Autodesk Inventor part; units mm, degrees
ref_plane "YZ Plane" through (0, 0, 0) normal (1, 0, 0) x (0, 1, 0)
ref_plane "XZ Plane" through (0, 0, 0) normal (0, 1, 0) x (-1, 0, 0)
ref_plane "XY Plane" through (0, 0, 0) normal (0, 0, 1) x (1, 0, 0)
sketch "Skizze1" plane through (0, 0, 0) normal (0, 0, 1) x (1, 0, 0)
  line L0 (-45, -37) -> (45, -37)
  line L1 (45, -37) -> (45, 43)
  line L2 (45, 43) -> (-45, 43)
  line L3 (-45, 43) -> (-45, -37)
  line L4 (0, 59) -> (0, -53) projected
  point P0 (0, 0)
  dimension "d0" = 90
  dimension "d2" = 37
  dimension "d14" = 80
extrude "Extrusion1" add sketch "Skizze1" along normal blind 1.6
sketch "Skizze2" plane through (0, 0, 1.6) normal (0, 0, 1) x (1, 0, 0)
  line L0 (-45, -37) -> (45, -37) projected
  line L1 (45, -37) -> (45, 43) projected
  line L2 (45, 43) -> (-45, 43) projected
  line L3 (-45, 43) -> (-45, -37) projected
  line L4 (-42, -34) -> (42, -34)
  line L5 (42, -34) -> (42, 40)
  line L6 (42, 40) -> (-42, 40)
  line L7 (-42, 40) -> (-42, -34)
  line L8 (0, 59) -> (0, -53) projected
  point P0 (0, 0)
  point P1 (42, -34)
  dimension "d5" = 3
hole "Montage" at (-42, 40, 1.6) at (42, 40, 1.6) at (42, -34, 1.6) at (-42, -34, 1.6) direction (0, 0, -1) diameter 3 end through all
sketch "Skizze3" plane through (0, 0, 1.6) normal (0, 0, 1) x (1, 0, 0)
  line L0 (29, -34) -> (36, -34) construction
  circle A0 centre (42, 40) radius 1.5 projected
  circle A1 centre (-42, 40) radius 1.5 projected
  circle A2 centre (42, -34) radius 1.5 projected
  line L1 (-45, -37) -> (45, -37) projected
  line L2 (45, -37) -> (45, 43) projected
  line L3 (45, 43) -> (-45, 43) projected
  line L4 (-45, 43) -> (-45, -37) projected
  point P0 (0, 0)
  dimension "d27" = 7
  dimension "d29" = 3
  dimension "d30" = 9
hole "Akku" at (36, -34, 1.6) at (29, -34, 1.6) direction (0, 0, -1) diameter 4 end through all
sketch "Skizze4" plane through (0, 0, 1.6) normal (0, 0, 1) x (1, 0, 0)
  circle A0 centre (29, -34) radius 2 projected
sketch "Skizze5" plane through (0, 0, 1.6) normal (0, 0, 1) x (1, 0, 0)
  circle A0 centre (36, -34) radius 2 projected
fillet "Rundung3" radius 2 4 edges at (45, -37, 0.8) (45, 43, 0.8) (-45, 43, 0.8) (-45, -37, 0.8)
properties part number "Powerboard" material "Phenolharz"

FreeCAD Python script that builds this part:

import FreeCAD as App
import Part
import Sketcher
from FreeCAD import Vector
Q = App.Units.Quantity


def edges_at(feature, points):
    """Names of the edges that pass closest to the given points."""
    edges = feature.Shape.Edges
    near = lambda p: min(range(len(edges)), key=lambda i: edges[i].distToShape(Part.Vertex(*p))[0])
    return sorted({f"Edge{near(p) + 1}" for p in points})


def add_polygon(sketch, points):
    """Adds a closed chain of lines whose ends are joined by coincident constraints."""
    first, n = sketch.GeometryCount, len(points)
    for a, b in zip(points, points[1:] + points[:1]):
        sketch.addGeometry(Part.LineSegment(App.Vector(*a, 0), App.Vector(*b, 0)), False)
    for i in range(n):
        sketch.addConstraint(Sketcher.Constraint("Coincident", first + i, 2, first + (i + 1) % n, 1))

doc = App.newDocument("Part")
params = doc.addObject("Spreadsheet::Sheet", "Params")
for row, (alias, value) in enumerate([
    ("sketch1_width", "90 mm"),
    ("sketch1_height", "80 mm"),
    ("pad1_length", "1.6 mm"),
    ("sketch2_diameter", "3 mm"),
    ("hole_diameter", "3 mm"),
    ("sketch3_diameter", "4 mm"),
    ("hole2_diameter", "4 mm"),
    ("fillet_radius", "2 mm"),
], start=1):
    params.set(f"A{row}", alias)
    params.set(f"B{row}", "=" + value)
    params.setAlias(f"B{row}", alias)

body = doc.addObject("PartDesign::Body", "Body")

sketch1 = doc.addObject("Sketcher::SketchObject", "Sketch")
body.addObject(sketch1)
sketch1.AttachmentSupport = (doc.XY_Plane, [""])
sketch1.MapMode = "FlatFace"
add_polygon(sketch1, [(-45, 43), (-45, -37), (45, -37), (45, 43)])
sketch1.addConstraint(Sketcher.Constraint("Vertical", 0))
sketch1.addConstraint(Sketcher.Constraint("Horizontal", 1))
sketch1.addConstraint(Sketcher.Constraint("Vertical", 2))
sketch1.addConstraint(Sketcher.Constraint("Horizontal", 3))
sketch1.addConstraint(Sketcher.Constraint("DistanceX", 1, 1, 1, 2, Q("90 mm")))
sketch1.addConstraint(Sketcher.Constraint("DistanceY", 0, 2, 0, 1, Q("80 mm")))
sketch1.addConstraint(Sketcher.Constraint("DistanceY", 0, 2, -1, 1, Q("37 mm")))
sketch1.addConstraint(Sketcher.Constraint("DistanceX", 0, 2, -1, 1, Q("45 mm")))
sketch1.setExpression("Constraints[8]", "Params.sketch1_width")
sketch1.setExpression("Constraints[9]", "Params.sketch1_height")
pad1 = doc.addObject("PartDesign::Pad", "Pad")
body.addObject(pad1)
pad1.Profile = sketch1
pad1.setExpression("Length", "Params.pad1_length")

sketch2 = doc.addObject("Sketcher::SketchObject", "Sketch001")
body.addObject(sketch2)
sketch2.AttachmentSupport = (doc.XY_Plane, [""])
sketch2.MapMode = "FlatFace"
sketch2.AttachmentOffset = App.Placement(Vector(0, 0, 1.6), App.Rotation())
sketch2.addGeometry(Part.Circle(Vector(-42, 40, 0), Vector(0, 0, 1), 1.5), False)
sketch2.addGeometry(Part.Circle(Vector(42, 40, 0), Vector(0, 0, 1), 1.5), False)
sketch2.addGeometry(Part.Circle(Vector(42, -34, 0), Vector(0, 0, 1), 1.5), False)
sketch2.addGeometry(Part.Circle(Vector(-42, -34, 0), Vector(0, 0, 1), 1.5), False)
sketch2.addConstraint(Sketcher.Constraint("Equal", 0, 1))
sketch2.addConstraint(Sketcher.Constraint("Equal", 1, 2))
sketch2.addConstraint(Sketcher.Constraint("Equal", 2, 3))
sketch2.addConstraint(Sketcher.Constraint("Symmetric", 0, 3, 1, 3, -2))
sketch2.addConstraint(Sketcher.Constraint("Symmetric", 2, 3, 3, 3, -2))
sketch2.addConstraint(Sketcher.Constraint("Vertical", 1, 3, 2, 3))
sketch2.addConstraint(Sketcher.Constraint("Diameter", 0, Q("3 mm")))
sketch2.addConstraint(Sketcher.Constraint("DistanceX", 0, 3, -1, 1, Q("42 mm")))
sketch2.addConstraint(Sketcher.Constraint("DistanceY", -1, 1, 0, 3, Q("40 mm")))
sketch2.addConstraint(Sketcher.Constraint("DistanceY", 2, 3, -1, 1, Q("34 mm")))
sketch2.setExpression("Constraints[6]", "Params.sketch2_diameter")
doc.recompute()
hole = doc.addObject("PartDesign::Hole", "Hole")
body.addObject(hole)
hole.Profile = sketch2
hole.ThreadType = "None"
hole.setExpression("Diameter", "Params.hole_diameter")
hole.DepthType = "ThroughAll"

sketch3 = doc.addObject("Sketcher::SketchObject", "Sketch002")
body.addObject(sketch3)
sketch3.AttachmentSupport = (doc.XY_Plane, [""])
sketch3.MapMode = "FlatFace"
sketch3.AttachmentOffset = App.Placement(Vector(0, 0, 1.6), App.Rotation())
sketch3.addGeometry(Part.Circle(Vector(36, -34, 0), Vector(0, 0, 1), 2), False)
sketch3.addGeometry(Part.Circle(Vector(29, -34, 0), Vector(0, 0, 1), 2), False)
sketch3.addConstraint(Sketcher.Constraint("Equal", 0, 1))
sketch3.addConstraint(Sketcher.Constraint("Horizontal", 0, 3, 1, 3))
sketch3.addConstraint(Sketcher.Constraint("Diameter", 0, Q("4 mm")))
sketch3.addConstraint(Sketcher.Constraint("DistanceX", -1, 1, 0, 3, Q("36 mm")))
sketch3.addConstraint(Sketcher.Constraint("DistanceY", 0, 3, -1, 1, Q("34 mm")))
sketch3.addConstraint(Sketcher.Constraint("DistanceX", -1, 1, 1, 3, Q("29 mm")))
sketch3.setExpression("Constraints[2]", "Params.sketch3_diameter")
doc.recompute()
hole2 = doc.addObject("PartDesign::Hole", "Hole001")
body.addObject(hole2)
hole2.Profile = sketch3
hole2.ThreadType = "None"
hole2.setExpression("Diameter", "Params.hole2_diameter")
hole2.DepthType = "ThroughAll"
doc.recompute()

fillet = doc.addObject("PartDesign::Fillet", "Fillet")
body.addObject(fillet)
fillet.Base = (hole2, edges_at(hole2, [
    (45, -37, 0.8),
    (45, 43, 0.8),
    (-45, 43, 0.8),
    (-45, -37, 0.8),
]))
fillet.setExpression("Radius", "Params.fillet_radius")

doc.recompute()
